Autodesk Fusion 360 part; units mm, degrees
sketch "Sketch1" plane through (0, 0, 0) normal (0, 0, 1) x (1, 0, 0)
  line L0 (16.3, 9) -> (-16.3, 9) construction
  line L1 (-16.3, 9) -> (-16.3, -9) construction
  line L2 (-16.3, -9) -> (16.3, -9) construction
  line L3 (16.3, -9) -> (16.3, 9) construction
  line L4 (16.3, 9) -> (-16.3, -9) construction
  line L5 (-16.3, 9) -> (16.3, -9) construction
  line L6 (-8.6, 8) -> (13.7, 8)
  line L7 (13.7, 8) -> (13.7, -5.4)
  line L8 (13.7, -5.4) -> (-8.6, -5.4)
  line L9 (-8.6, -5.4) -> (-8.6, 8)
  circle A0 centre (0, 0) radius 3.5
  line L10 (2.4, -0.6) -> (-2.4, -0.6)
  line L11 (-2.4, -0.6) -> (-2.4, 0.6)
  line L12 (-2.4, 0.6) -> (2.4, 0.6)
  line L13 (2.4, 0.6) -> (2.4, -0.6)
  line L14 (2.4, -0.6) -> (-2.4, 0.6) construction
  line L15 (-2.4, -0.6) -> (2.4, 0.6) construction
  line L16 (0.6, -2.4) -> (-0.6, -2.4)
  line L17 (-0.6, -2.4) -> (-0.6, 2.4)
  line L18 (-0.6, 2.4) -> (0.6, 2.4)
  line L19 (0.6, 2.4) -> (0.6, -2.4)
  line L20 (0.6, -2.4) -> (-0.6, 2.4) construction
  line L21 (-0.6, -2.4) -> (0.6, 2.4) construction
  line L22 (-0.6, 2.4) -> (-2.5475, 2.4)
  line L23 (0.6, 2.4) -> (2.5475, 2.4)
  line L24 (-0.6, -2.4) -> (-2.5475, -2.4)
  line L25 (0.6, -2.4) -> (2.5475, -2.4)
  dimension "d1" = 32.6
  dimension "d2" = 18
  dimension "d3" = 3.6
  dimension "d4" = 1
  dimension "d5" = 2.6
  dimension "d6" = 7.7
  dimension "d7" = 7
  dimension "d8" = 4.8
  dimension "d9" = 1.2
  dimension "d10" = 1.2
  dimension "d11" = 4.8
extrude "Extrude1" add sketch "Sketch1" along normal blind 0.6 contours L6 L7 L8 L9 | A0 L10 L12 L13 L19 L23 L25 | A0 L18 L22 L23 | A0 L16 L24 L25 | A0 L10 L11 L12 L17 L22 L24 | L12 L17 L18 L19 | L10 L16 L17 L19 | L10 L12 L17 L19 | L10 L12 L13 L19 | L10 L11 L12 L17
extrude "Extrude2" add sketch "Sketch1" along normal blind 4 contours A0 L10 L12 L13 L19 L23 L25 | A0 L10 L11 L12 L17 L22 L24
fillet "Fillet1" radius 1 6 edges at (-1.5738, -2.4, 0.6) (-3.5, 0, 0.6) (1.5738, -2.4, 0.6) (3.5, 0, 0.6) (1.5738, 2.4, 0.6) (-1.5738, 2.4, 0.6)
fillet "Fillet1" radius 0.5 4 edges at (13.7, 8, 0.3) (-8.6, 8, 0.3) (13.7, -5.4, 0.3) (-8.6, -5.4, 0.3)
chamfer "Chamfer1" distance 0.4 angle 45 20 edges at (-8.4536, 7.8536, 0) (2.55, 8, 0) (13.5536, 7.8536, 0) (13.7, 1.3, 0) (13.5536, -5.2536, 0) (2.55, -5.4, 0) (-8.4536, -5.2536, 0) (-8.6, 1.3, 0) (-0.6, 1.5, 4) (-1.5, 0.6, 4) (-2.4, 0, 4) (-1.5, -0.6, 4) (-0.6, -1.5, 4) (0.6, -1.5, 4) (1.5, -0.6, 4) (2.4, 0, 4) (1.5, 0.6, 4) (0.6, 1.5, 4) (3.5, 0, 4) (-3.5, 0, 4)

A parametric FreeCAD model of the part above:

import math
import FreeCAD as App
import Part
import Sketcher

V = App.Vector


def edges_at(feature, points):
    """Names of the edges that pass closest to the given points."""
    edges = feature.Shape.Edges
    near = lambda p: min(range(len(edges)), key=lambda i: edges[i].distToShape(Part.Vertex(*p))[0])
    return sorted({f"Edge{near(p) + 1}" for p in points})

doc = App.newDocument("Part")
params = doc.addObject("Spreadsheet::Sheet", "Params")
for row, (alias, value) in enumerate([
    ("sketch1_width", "22.3 mm"),
    ("sketch1_height", "13.4 mm"),
    ("pad1_length", "0.6 mm"),
    ("sketch2_radius", "3.5 mm"),
    ("sketch2_height", "1.2 mm"),
    ("sketch2_width", "1.8 mm"),
    ("pad2_length", "4 mm"),
    ("fillet_radius", "1 mm"),
    ("fillet2_radius", "0.5 mm"),
    ("chamfer_size", "0.4 mm"),
], start=1):
    params.set(f"A{row}", alias)
    params.set(f"B{row}", "=" + value)
    params.setAlias(f"B{row}", alias)

body = doc.addObject("PartDesign::Body", "Body")

# Sketch on XY plane
sketch1 = body.newObject("Sketcher::SketchObject", "Sketch")
sketch1.AttachmentSupport = (doc.getObject("XY_Plane"), [""])
sketch1.MapMode = "FlatFace"
sketch1.addGeometry(Part.LineSegment(V(14, 8, 0), V(-9, 8, 0)), False)
sketch1.addGeometry(Part.LineSegment(V(-9, 8, 0), V(-9, -5, 0)), False)
sketch1.addGeometry(Part.LineSegment(V(-9, -5, 0), V(14, -5, 0)), False)
sketch1.addGeometry(Part.LineSegment(V(14, -5, 0), V(14, 8, 0)), False)
sketch1.addConstraint(Sketcher.Constraint("Coincident", 0, 2, 1, 1))
sketch1.addConstraint(Sketcher.Constraint("Coincident", 1, 2, 2, 1))
sketch1.addConstraint(Sketcher.Constraint("Coincident", 2, 2, 3, 1))
sketch1.addConstraint(Sketcher.Constraint("Coincident", 3, 2, 0, 1))
sketch1.addConstraint(Sketcher.Constraint("Horizontal", 0))
sketch1.addConstraint(Sketcher.Constraint("Vertical", 1))
sketch1.addConstraint(Sketcher.Constraint("Horizontal", 2))
sketch1.addConstraint(Sketcher.Constraint("Vertical", 3))
sketch1.addConstraint(Sketcher.Constraint("DistanceX", 0, 2, 0, 1, 22.3))
sketch1.addConstraint(Sketcher.Constraint("DistanceY", 1, 2, 1, 1, 13.4))
sketch1.addConstraint(Sketcher.Constraint("DistanceY", -1, 1, 0, 2, 8.0))
sketch1.addConstraint(Sketcher.Constraint("DistanceX", 0, 2, -1, 1, 8.6))
sketch1.setExpression("Constraints[8]", "Params.sketch1_width")
sketch1.setExpression("Constraints[9]", "Params.sketch1_height")
pad1 = body.newObject("PartDesign::Pad", "Pad")
pad1.Profile = sketch1
pad1.setExpression("Length", "Params.pad1_length")

# Sketch on XY plane
sketch2 = body.newObject("Sketcher::SketchObject", "Sketch001")
sketch2.AttachmentSupport = (doc.getObject("XY_Plane"), [""])
sketch2.MapMode = "FlatFace"
sketch2.addGeometry(Part.ArcOfCircle(Part.Circle(V(0, 0, 0), V(0, 0, 1), 3.5), math.radians(-43), math.radians(43)), False)
sketch2.addGeometry(Part.LineSegment(V(2.5, 2.4, 0), V(0.6, 2.4, 0)), False)
sketch2.addGeometry(Part.LineSegment(V(0.6, 2.4, 0), V(0.6, 0.6, 0)), False)
sketch2.addGeometry(Part.LineSegment(V(0.6, 0.6, 0), V(2.4, 0.6, 0)), False)
sketch2.addGeometry(Part.LineSegment(V(2.4, 0.6, 0), V(2.4, -0.6, 0)), False)
sketch2.addGeometry(Part.LineSegment(V(2.4, -0.6, 0), V(0.6, -0.6, 0)), False)
sketch2.addGeometry(Part.LineSegment(V(0.6, -0.6, 0), V(0.6, -2.4, 0)), False)
sketch2.addGeometry(Part.LineSegment(V(0.6, -2.4, 0), V(2.5, -2.4, 0)), False)
sketch2.addGeometry(Part.LineSegment(V(-0.6, 2.4, 0), V(-2.5, 2.4, 0)), False)
sketch2.addGeometry(Part.ArcOfCircle(Part.Circle(V(0, 0, 0), V(0, 0, 1), 3.5), math.radians(137), math.radians(223)), False)
sketch2.addGeometry(Part.LineSegment(V(-2.5, -2.4, 0), V(-0.6, -2.4, 0)), False)
sketch2.addGeometry(Part.LineSegment(V(-0.6, -2.4, 0), V(-0.6, -0.6, 0)), False)
sketch2.addGeometry(Part.LineSegment(V(-0.6, -0.6, 0), V(-2.4, -0.6, 0)), False)
sketch2.addGeometry(Part.LineSegment(V(-2.4, -0.6, 0), V(-2.4, 0.6, 0)), False)
sketch2.addGeometry(Part.LineSegment(V(-2.4, 0.6, 0), V(-0.6, 0.6, 0)), False)
sketch2.addGeometry(Part.LineSegment(V(-0.6, 0.6, 0), V(-0.6, 2.4, 0)), False)
sketch2.addConstraint(Sketcher.Constraint("Coincident", 0, 2, 1, 1))
sketch2.addConstraint(Sketcher.Constraint("Coincident", 1, 2, 2, 1))
sketch2.addConstraint(Sketcher.Constraint("Coincident", 2, 2, 3, 1))
sketch2.addConstraint(Sketcher.Constraint("Coincident", 3, 2, 4, 1))
sketch2.addConstraint(Sketcher.Constraint("Coincident", 4, 2, 5, 1))
sketch2.addConstraint(Sketcher.Constraint("Coincident", 5, 2, 6, 1))
sketch2.addConstraint(Sketcher.Constraint("Coincident", 6, 2, 7, 1))
sketch2.addConstraint(Sketcher.Constraint("Coincident", 7, 2, 0, 1))
sketch2.addConstraint(Sketcher.Constraint("Coincident", 8, 2, 9, 1))
sketch2.addConstraint(Sketcher.Constraint("Coincident", 9, 2, 10, 1))
sketch2.addConstraint(Sketcher.Constraint("Coincident", 10, 2, 11, 1))
sketch2.addConstraint(Sketcher.Constraint("Coincident", 11, 2, 12, 1))
sketch2.addConstraint(Sketcher.Constraint("Coincident", 12, 2, 13, 1))
sketch2.addConstraint(Sketcher.Constraint("Coincident", 13, 2, 14, 1))
sketch2.addConstraint(Sketcher.Constraint("Coincident", 14, 2, 15, 1))
sketch2.addConstraint(Sketcher.Constraint("Coincident", 15, 2, 8, 1))
sketch2.addConstraint(Sketcher.Constraint("Horizontal", 1))
sketch2.addConstraint(Sketcher.Constraint("Vertical", 2))
sketch2.addConstraint(Sketcher.Constraint("Horizontal", 3))
sketch2.addConstraint(Sketcher.Constraint("Vertical", 4))
sketch2.addConstraint(Sketcher.Constraint("Horizontal", 5))
sketch2.addConstraint(Sketcher.Constraint("Vertical", 6))
sketch2.addConstraint(Sketcher.Constraint("Horizontal", 7))
sketch2.addConstraint(Sketcher.Constraint("Horizontal", 8))
sketch2.addConstraint(Sketcher.Constraint("Horizontal", 10))
sketch2.addConstraint(Sketcher.Constraint("Vertical", 11))
sketch2.addConstraint(Sketcher.Constraint("Horizontal", 12))
sketch2.addConstraint(Sketcher.Constraint("Vertical", 13))
sketch2.addConstraint(Sketcher.Constraint("Horizontal", 14))
sketch2.addConstraint(Sketcher.Constraint("Vertical", 15))
sketch2.addConstraint(Sketcher.Constraint("Coincident", 0, 3, -1, 1))
sketch2.addConstraint(Sketcher.Constraint("Coincident", 9, 3, -1, 1))
sketch2.addConstraint(Sketcher.Constraint("Equal", 0, 9))
sketch2.addConstraint(Sketcher.Constraint("Symmetric", 1, 2, 10, 2, -1, 1))
sketch2.addConstraint(Sketcher.Constraint("Symmetric", 3, 2, 12, 2, -1, 1))
sketch2.addConstraint(Sketcher.Constraint("Symmetric", 5, 2, 14, 2, -1, 1))
sketch2.addConstraint(Sketcher.Constraint("Symmetric", 6, 2, 10, 2, -2))
sketch2.addConstraint(Sketcher.Constraint("Horizontal", 1, 2, 8, 2))
sketch2.addConstraint(Sketcher.Constraint("Horizontal", 5, 2, 11, 2))
sketch2.addConstraint(Sketcher.Constraint("Equal", 14, 2))
sketch2.addConstraint(Sketcher.Constraint("Radius", 0, 3.5))
sketch2.addConstraint(Sketcher.Constraint("DistanceY", 4, 2, 4, 1, 1.2))
sketch2.addConstraint(Sketcher.Constraint("DistanceX", 10, 2, 6, 2, 1.2))
sketch2.addConstraint(Sketcher.Constraint("DistanceX", 3, 1, 3, 2, 1.8))
sketch2.setExpression("Constraints[40]", "Params.sketch2_radius")
sketch2.setExpression("Constraints[41]", "Params.sketch2_height")
sketch2.setExpression("Constraints[43]", "Params.sketch2_width")
pad2 = body.newObject("PartDesign::Pad", "Pad001")
pad2.Profile = sketch2
pad2.setExpression("Length", "Params.pad2_length")
doc.recompute()

fillet = body.newObject("PartDesign::Fillet", "Fillet")
fillet.Base = (pad2, edges_at(pad2, [
    (-1.574, -2.4, 0.6),
    (-3.5, 0, 0.6),
    (1.574, -2.4, 0.6),
    (3.5, 0, 0.6),
    (1.574, 2.4, 0.6),
    (-1.574, 2.4, 0.6),
]))
fillet.setExpression("Radius", "Params.fillet_radius")
doc.recompute()

fillet2 = body.newObject("PartDesign::Fillet", "Fillet001")
fillet2.Base = (fillet, edges_at(fillet, [
    (13.7, 8, 0.3),
    (-8.6, 8, 0.3),
    (13.7, -5.4, 0.3),
    (-8.6, -5.4, 0.3),
]))
fillet2.setExpression("Radius", "Params.fillet2_radius")
doc.recompute()

chamfer = body.newObject("PartDesign::Chamfer", "Chamfer")
chamfer.Base = (fillet2, edges_at(fillet2, [
    (-8.454, 7.854, 0),
    (2.55, 8, 0),
    (13.554, 7.854, 0),
    (13.7, 1.3, 0),
    (13.554, -5.254, 0),
    (2.55, -5.4, 0),
    (-8.454, -5.254, 0),
    (-8.6, 1.3, 0),
    (-0.6, 1.5, 4),
    (-1.5, 0.6, 4),
    (-2.4, 0, 4),
    (-1.5, -0.6, 4),
    (-0.6, -1.5, 4),
    (0.6, -1.5, 4),
    (1.5, -0.6, 4),
    (2.4, 0, 4),
    (1.5, 0.6, 4),
    (0.6, 1.5, 4),
    (3.5, 0, 4),
    (-3.5, 0, 4),
]))
chamfer.setExpression("Size", "Params.chamfer_size")

doc.recompute()
